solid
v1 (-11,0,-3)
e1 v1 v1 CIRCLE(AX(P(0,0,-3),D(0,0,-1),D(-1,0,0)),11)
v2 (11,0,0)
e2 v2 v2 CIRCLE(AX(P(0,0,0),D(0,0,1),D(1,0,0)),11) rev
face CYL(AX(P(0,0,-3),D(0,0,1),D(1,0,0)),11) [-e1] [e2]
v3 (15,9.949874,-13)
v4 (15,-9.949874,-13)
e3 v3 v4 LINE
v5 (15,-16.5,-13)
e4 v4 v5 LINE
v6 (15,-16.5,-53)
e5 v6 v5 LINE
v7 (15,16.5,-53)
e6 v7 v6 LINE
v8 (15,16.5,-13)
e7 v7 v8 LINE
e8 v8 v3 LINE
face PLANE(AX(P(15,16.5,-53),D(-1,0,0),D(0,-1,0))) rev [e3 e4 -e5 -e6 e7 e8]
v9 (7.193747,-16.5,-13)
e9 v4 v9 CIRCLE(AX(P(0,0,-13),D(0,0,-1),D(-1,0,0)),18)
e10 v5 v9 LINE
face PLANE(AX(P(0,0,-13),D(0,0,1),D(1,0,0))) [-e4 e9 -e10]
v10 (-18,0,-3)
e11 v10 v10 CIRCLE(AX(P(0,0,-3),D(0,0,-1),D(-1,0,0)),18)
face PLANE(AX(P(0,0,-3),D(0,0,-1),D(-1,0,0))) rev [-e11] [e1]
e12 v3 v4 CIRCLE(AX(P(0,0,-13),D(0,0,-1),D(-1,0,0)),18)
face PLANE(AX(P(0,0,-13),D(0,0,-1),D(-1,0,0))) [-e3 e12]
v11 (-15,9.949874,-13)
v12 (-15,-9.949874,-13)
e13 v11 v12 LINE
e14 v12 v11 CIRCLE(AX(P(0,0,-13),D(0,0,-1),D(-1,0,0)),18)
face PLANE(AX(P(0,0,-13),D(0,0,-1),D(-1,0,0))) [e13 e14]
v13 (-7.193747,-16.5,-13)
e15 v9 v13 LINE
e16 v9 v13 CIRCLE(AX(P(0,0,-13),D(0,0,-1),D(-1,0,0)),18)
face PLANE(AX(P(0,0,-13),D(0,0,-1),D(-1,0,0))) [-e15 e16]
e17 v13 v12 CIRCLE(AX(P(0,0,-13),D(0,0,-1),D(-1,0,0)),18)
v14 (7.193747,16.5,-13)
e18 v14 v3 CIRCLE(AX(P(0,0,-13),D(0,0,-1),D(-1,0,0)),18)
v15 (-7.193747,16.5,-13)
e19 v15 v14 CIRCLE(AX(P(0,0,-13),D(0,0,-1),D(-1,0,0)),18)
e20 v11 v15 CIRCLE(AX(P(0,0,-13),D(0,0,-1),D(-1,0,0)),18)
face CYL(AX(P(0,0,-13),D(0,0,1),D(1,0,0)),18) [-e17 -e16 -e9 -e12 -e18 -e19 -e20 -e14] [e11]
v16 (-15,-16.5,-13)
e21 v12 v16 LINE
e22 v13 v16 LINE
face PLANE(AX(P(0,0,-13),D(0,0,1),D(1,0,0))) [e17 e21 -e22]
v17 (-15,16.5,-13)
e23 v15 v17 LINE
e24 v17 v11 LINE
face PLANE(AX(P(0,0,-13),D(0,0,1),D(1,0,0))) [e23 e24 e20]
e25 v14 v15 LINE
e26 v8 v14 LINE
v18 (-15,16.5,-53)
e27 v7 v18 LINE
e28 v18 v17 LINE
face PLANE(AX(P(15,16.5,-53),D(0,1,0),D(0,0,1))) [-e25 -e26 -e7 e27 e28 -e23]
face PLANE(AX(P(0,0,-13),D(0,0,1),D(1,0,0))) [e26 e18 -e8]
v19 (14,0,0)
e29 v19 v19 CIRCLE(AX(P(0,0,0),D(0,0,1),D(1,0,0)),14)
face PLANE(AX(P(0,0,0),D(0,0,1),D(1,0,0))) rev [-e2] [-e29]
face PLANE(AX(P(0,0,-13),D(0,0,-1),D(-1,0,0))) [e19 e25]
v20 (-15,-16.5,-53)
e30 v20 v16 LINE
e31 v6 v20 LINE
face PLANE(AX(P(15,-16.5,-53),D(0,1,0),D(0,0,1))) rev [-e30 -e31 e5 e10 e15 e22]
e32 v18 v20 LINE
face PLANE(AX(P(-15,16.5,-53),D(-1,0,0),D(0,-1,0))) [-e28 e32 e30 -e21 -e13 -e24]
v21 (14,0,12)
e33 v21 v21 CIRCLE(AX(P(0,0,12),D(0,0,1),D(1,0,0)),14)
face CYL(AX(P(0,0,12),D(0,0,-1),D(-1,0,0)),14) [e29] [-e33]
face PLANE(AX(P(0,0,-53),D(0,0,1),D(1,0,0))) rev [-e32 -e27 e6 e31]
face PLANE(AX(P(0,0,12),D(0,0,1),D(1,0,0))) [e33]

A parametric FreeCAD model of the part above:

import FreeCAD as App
import Part
import Sketcher

V = App.Vector


def add_polygon(sketch, points):
    """Adds a closed chain of lines whose ends are joined by coincident constraints."""
    first, n = sketch.GeometryCount, len(points)
    for a, b in zip(points, points[1:] + points[:1]):
        sketch.addGeometry(Part.LineSegment(App.Vector(*a, 0), App.Vector(*b, 0)), False)
    for i in range(n):
        sketch.addConstraint(Sketcher.Constraint("Coincident", first + i, 2, first + (i + 1) % n, 1))

doc = App.newDocument("Part")
body = doc.addObject("PartDesign::Body", "Body")

sketch1 = body.newObject("Sketcher::SketchObject", "Sketch")
sketch1.AttachmentSupport = (doc.getObject("XY_Plane"), [""])
sketch1.MapMode = "FlatFace"
sketch1.addGeometry(Part.Circle(V(0, 0, 0), V(0, 0, 1), 14), False)
sketch1.addConstraint([
    Sketcher.Constraint("Coincident", 0, 3, -1, 1),
    Sketcher.Constraint("Diameter", 0, 28.0),
])
pad1 = body.newObject("PartDesign::Pad", "Pad")
pad1.Profile = sketch1
pad1.Length = 12

sketch2 = body.newObject("Sketcher::SketchObject", "Sketch001")
sketch2.AttachmentSupport = (doc.getObject("XY_Plane"), [""])
sketch2.MapMode = "FlatFace"
sketch2.addGeometry(Part.Circle(V(0, 0, 0), V(0, 0, 1), 11), False)
sketch2.addConstraint([
    Sketcher.Constraint("Coincident", 0, 3, -1, 1),
    Sketcher.Constraint("Diameter", 0, 22.0),
])
pad2 = body.newObject("PartDesign::Pad", "Pad001")
pad2.Profile = sketch2
pad2.Length = 3
pad2.Reversed = True

sketch3 = body.newObject("Sketcher::SketchObject", "Sketch002")
sketch3.AttachmentSupport = (doc.getObject("XY_Plane"), [""])
sketch3.MapMode = "FlatFace"
sketch3.AttachmentOffset = App.Placement(V(0, 0, -3), App.Rotation())
sketch3.addGeometry(Part.Circle(V(0, 0, 0), V(0, 0, 1), 18), False)
sketch3.addConstraint([
    Sketcher.Constraint("Coincident", 0, 3, -1, 1),
    Sketcher.Constraint("Diameter", 0, 36.0),
])
pad3 = body.newObject("PartDesign::Pad", "Pad002")
pad3.Profile = sketch3
pad3.Length = 10
pad3.Reversed = True

sketch4 = body.newObject("Sketcher::SketchObject", "Sketch003")
sketch4.AttachmentSupport = (doc.getObject("XY_Plane"), [""])
sketch4.MapMode = "FlatFace"
sketch4.AttachmentOffset = App.Placement(V(0, 0, -13), App.Rotation())
add_polygon(sketch4, [(15, 16), (15, -16), (-15, -16), (-15, 16)])
sketch4.addConstraint([
    Sketcher.Constraint("Vertical", 0),
    Sketcher.Constraint("Horizontal", 1),
    Sketcher.Constraint("Vertical", 2),
    Sketcher.Constraint("Horizontal", 3),
    Sketcher.Constraint("Symmetric", 0, 2, 2, 2, -1, 1),
    Sketcher.Constraint("DistanceX", 1, 2, 1, 1, 30.0),
    Sketcher.Constraint("DistanceY", 0, 2, 0, 1, 33.0),
])
pad4 = body.newObject("PartDesign::Pad", "Pad003")
pad4.Profile = sketch4
pad4.Length = 40
pad4.Reversed = True

doc.recompute()
